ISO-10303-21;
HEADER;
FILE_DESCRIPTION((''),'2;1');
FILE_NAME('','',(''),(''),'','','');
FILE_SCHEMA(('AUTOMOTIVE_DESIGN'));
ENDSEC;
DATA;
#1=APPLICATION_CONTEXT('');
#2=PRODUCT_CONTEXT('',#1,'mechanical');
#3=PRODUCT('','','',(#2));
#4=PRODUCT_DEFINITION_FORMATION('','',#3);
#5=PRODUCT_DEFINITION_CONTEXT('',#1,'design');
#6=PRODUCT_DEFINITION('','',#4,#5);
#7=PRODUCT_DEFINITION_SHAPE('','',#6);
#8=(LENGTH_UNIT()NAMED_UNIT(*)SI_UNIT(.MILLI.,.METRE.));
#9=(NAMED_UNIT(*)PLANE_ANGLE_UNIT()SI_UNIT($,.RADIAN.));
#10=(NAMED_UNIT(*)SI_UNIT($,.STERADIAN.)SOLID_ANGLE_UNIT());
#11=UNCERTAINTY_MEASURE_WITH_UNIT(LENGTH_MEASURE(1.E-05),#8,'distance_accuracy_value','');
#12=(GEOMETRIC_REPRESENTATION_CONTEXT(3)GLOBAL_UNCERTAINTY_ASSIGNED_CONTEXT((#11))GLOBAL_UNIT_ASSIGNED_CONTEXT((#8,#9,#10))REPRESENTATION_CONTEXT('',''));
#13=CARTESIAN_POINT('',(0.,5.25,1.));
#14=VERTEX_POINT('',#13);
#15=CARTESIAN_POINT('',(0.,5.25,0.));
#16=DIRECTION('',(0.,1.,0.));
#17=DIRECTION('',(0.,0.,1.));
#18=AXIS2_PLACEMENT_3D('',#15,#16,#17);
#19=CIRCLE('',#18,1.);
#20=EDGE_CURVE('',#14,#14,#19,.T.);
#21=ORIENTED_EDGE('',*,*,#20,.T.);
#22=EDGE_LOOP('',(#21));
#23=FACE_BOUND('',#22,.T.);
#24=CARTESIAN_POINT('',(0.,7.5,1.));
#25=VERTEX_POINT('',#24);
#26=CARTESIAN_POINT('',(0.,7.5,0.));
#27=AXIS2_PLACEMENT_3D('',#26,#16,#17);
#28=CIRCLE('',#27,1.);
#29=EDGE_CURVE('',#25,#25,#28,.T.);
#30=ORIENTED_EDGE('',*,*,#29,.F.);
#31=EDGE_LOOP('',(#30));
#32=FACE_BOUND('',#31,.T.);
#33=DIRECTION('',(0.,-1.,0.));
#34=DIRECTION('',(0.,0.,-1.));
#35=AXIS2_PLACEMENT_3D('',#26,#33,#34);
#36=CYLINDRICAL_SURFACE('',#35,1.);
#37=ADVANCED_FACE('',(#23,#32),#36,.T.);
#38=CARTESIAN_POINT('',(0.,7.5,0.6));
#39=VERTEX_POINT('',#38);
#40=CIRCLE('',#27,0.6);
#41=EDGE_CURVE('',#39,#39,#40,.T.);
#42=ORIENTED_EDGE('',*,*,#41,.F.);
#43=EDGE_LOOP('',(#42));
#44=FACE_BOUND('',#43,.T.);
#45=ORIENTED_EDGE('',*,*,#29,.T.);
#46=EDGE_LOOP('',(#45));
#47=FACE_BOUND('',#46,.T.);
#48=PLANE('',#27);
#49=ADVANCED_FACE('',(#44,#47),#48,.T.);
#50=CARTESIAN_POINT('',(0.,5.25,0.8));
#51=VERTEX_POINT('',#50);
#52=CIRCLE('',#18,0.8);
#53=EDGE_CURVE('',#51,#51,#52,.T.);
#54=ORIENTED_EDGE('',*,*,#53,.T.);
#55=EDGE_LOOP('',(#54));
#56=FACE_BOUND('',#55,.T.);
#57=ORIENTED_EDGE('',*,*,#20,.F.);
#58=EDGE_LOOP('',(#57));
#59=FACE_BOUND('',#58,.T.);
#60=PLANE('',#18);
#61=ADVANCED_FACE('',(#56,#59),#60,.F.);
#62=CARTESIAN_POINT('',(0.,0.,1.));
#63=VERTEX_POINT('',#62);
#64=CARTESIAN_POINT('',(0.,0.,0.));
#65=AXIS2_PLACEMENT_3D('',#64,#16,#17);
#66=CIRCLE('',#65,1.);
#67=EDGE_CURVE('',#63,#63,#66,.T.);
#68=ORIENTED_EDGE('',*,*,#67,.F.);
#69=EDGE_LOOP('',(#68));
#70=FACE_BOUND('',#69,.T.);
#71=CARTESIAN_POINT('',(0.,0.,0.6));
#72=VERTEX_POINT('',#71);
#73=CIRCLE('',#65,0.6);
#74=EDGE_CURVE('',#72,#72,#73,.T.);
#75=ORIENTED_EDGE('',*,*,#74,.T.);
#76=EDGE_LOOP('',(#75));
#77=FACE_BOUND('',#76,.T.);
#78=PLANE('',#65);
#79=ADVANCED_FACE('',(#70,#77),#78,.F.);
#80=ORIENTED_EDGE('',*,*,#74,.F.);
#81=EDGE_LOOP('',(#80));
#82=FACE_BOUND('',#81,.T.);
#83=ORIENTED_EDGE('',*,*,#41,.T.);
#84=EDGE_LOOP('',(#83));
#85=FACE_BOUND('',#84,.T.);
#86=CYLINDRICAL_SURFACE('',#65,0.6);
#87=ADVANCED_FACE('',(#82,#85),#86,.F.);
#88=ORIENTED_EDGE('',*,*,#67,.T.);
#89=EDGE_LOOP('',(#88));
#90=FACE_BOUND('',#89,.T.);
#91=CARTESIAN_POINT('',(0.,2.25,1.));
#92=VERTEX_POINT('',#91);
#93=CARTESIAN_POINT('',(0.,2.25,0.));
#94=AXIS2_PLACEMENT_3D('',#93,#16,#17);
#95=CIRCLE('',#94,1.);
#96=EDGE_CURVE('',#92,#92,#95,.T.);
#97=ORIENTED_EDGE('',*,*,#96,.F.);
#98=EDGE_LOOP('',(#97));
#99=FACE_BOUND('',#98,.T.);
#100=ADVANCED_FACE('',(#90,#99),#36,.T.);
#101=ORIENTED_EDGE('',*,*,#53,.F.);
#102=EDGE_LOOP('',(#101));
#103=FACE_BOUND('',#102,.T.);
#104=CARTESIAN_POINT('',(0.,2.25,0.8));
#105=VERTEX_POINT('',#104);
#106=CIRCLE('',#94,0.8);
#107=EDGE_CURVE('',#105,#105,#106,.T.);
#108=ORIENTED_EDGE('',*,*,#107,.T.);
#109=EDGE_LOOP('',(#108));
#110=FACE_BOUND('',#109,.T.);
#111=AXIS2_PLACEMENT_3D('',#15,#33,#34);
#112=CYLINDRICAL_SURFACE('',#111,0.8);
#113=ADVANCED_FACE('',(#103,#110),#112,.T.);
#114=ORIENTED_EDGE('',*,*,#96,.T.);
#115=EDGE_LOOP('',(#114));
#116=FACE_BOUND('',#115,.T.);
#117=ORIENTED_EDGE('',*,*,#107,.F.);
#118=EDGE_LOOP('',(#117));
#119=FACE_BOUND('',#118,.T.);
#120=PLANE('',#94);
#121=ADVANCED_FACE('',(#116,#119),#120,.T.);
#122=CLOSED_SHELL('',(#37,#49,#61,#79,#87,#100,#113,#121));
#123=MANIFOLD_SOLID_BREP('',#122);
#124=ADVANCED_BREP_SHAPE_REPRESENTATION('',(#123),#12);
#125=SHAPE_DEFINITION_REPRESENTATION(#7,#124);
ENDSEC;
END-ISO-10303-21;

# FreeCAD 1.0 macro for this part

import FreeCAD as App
import Part
import Sketcher
Q = App.Units.Quantity

doc = App.newDocument("Part")
params = doc.addObject("Spreadsheet::Sheet", "Params")
for row, (alias, value) in enumerate([
    ("sketch1_diameter", "2 mm"),
    ("pad1_length", "7.5 mm"),
    ("sketch2_diameter", "1.6 mm"),
    ("pocket1_length", "1.5 mm"),
    ("pocket1_length2", "1.5 mm"),
    ("sketch3_diameter", "1.2 mm"),
    ("pocket2_length", "7.5 mm"),
], start=1):
    params.set(f"A{row}", alias)
    params.set(f"B{row}", "=" + value)
    params.setAlias(f"B{row}", alias)

body = doc.addObject("PartDesign::Body", "Body")

sketch1 = body.newObject("Sketcher::SketchObject", "Sketch")
sketch1.AttachmentSupport = (doc.getObject("XZ_Plane"), [""])
sketch1.MapMode = "FlatFace"
sketch1.addGeometry(Part.Circle(App.Vector(0, 0, 0), App.Vector(0, 0, 1), 1), False)
sketch1.addConstraint([
    Sketcher.Constraint("Coincident", 0, 3, -1, 1),
    Sketcher.Constraint("Diameter", 0, Q("2 mm")),
])
sketch1.setExpression("Constraints[1]", "Params.sketch1_diameter")
pad1 = body.newObject("PartDesign::Pad", "Pad")
pad1.Profile = sketch1
pad1.setExpression("Length", "Params.pad1_length")
pad1.Reversed = True

sketch2 = body.newObject("Sketcher::SketchObject", "Sketch001")
sketch2.AttachmentSupport = (doc.getObject("XZ_Plane"), [""])
sketch2.MapMode = "FlatFace"
sketch2.AttachmentOffset = App.Placement(App.Vector(0, 0, -3.75), App.Rotation())
sketch2.addGeometry([
    Part.LineSegment(App.Vector(-2.8, -2.8, 0), App.Vector(-2.8, 2.8, 0)),
    Part.LineSegment(App.Vector(-2.8, 2.8, 0), App.Vector(2.8, 2.8, 0)),
    Part.LineSegment(App.Vector(2.8, 2.8, 0), App.Vector(2.8, -2.8, 0)),
    Part.LineSegment(App.Vector(2.8, -2.8, 0), App.Vector(-2.8, -2.8, 0)),
    Part.Circle(App.Vector(0, 0, 0), App.Vector(0, 0, 1), 0.8),
], False)
sketch2.addConstraint([
    Sketcher.Constraint("Coincident", 0, 2, 1, 1),
    Sketcher.Constraint("Coincident", 1, 2, 2, 1),
    Sketcher.Constraint("Coincident", 2, 2, 3, 1),
    Sketcher.Constraint("Coincident", 3, 2, 0, 1),
    Sketcher.Constraint("Vertical", 0),
    Sketcher.Constraint("Horizontal", 1),
    Sketcher.Constraint("Vertical", 2),
    Sketcher.Constraint("Horizontal", 3),
    Sketcher.Constraint("Coincident", 4, 3, -1, 1),
    Sketcher.Constraint("Symmetric", 0, 2, 2, 2, -1, 1),
    Sketcher.Constraint("Equal", 3, 0),
    Sketcher.Constraint("Diameter", 4, Q("1.6 mm")),
    Sketcher.Constraint("DistanceX", 1, 1, 1, 2, Q("5.604 mm")),
])
sketch2.setExpression("Constraints[11]", "Params.sketch2_diameter")
pocket1 = body.newObject("PartDesign::Pocket", "Pocket")
pocket1.Profile = sketch2
pocket1.Type = "TwoLengths"
pocket1.setExpression("Length", "Params.pocket1_length")
pocket1.setExpression("Length2", "Params.pocket1_length2")

sketch3 = body.newObject("Sketcher::SketchObject", "Sketch002")
sketch3.AttachmentSupport = (doc.getObject("XZ_Plane"), [""])
sketch3.MapMode = "FlatFace"
sketch3.AttachmentOffset = App.Placement(App.Vector(0, 0, -7.5), App.Rotation())
sketch3.addGeometry(Part.Circle(App.Vector(0, 0, 0), App.Vector(0, 0, 1), 0.6), False)
sketch3.addConstraint([
    Sketcher.Constraint("Coincident", 0, 3, -1, 1),
    Sketcher.Constraint("Diameter", 0, Q("1.2 mm")),
])
sketch3.setExpression("Constraints[1]", "Params.sketch3_diameter")
pocket2 = body.newObject("PartDesign::Pocket", "Pocket001")
pocket2.Profile = sketch3
pocket2.setExpression("Length", "Params.pocket2_length")
pocket2.Reversed = True

doc.recompute()
